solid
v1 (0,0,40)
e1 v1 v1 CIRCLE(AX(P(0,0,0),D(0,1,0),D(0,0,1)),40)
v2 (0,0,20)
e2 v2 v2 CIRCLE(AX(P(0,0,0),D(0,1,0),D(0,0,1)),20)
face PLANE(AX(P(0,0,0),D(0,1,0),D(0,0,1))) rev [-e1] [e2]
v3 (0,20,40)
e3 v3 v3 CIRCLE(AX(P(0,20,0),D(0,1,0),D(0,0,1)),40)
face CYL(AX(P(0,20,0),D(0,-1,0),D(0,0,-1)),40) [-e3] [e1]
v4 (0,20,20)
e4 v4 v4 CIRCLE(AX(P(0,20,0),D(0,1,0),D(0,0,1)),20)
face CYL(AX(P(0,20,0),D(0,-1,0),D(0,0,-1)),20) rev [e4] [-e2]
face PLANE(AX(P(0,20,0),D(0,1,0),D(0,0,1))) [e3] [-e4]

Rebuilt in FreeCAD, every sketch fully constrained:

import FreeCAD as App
import Part
import Sketcher
Q = App.Units.Quantity

doc = App.newDocument("Part")
body = doc.addObject("PartDesign::Body", "Body")

# Sketch on XZ plane
sketch1 = body.newObject("Sketcher::SketchObject", "Sketch")
sketch1.AttachmentSupport = (doc.getObject("XZ_Plane"), [""])
sketch1.MapMode = "FlatFace"
sketch1.addGeometry([
    Part.Circle(App.Vector(0, 0, 0), App.Vector(0, 0, 1), 40),
    Part.Circle(App.Vector(0, 0, 0), App.Vector(0, 0, 1), 20),
], False)
sketch1.addConstraint([
    Sketcher.Constraint("Coincident", 0, 3, -1, 1),
    Sketcher.Constraint("Coincident", 1, 3, -1, 1),
    Sketcher.Constraint("Diameter", 0, Q("80 mm")),
    Sketcher.Constraint("Diameter", 1, Q("40 mm")),
])
pad1 = body.newObject("PartDesign::Pad", "Pad")
pad1.Profile = sketch1
pad1.Length = 20
pad1.Reversed = True

doc.recompute()
